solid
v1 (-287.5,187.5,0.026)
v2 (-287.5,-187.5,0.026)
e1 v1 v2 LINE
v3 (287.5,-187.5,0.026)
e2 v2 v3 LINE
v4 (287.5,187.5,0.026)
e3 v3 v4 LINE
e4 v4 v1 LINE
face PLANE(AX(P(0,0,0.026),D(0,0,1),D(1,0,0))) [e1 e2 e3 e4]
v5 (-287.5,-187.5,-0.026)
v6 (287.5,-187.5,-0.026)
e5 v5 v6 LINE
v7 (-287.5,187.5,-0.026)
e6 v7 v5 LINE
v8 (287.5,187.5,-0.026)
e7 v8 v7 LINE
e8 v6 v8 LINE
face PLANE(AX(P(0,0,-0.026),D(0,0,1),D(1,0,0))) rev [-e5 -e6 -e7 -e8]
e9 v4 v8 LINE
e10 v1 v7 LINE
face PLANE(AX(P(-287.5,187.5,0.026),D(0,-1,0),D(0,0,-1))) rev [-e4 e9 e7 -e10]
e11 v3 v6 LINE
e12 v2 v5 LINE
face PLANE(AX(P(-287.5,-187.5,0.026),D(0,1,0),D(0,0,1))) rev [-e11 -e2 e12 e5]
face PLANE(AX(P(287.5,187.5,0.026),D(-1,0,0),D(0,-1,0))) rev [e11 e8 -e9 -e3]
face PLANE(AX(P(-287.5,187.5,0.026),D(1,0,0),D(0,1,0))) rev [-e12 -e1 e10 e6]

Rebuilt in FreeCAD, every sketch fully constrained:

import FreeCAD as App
import Part
import Sketcher

V = App.Vector
Q = App.Units.Quantity


def add_polygon(sketch, points):
    """Adds a closed chain of lines whose ends are joined by coincident constraints."""
    first, n = sketch.GeometryCount, len(points)
    for a, b in zip(points, points[1:] + points[:1]):
        sketch.addGeometry(Part.LineSegment(App.Vector(*a, 0), App.Vector(*b, 0)), False)
    for i in range(n):
        sketch.addConstraint(Sketcher.Constraint("Coincident", first + i, 2, first + (i + 1) % n, 1))

doc = App.newDocument("Part")
body = doc.addObject("PartDesign::Body", "Body")

sketch1 = body.newObject("Sketcher::SketchObject", "Sketch")
sketch1.AttachmentSupport = (doc.getObject("XY_Plane"), [""])
sketch1.MapMode = "FlatFace"
add_polygon(sketch1, [(-287.5, 187.5), (-287.5, -187.5), (287.5, -187.5), (287.5, 187.5)])
sketch1.addConstraint(Sketcher.Constraint("Vertical", 0))
sketch1.addConstraint(Sketcher.Constraint("Horizontal", 1))
sketch1.addConstraint(Sketcher.Constraint("Vertical", 2))
sketch1.addConstraint(Sketcher.Constraint("Horizontal", 3))
sketch1.addConstraint(Sketcher.Constraint("Symmetric", 0, 2, 2, 2, -1, 1))
sketch1.addConstraint(Sketcher.Constraint("DistanceX", 1, 1, 1, 2, Q("575 mm")))
sketch1.addConstraint(Sketcher.Constraint("DistanceY", 0, 2, 0, 1, Q("375 mm")))
pad1 = body.newObject("PartDesign::Pad", "Pad")
pad1.Profile = sketch1
pad1.Length = 0.052
pad1.Midplane = True

doc.recompute()
